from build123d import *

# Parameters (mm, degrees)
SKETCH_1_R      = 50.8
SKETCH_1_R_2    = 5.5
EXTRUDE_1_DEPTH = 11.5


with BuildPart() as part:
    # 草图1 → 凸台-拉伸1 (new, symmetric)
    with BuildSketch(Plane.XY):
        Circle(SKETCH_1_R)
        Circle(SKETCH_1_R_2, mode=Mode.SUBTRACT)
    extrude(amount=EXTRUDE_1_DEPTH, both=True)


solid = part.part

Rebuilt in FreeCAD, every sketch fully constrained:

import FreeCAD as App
import Part
import Sketcher

doc = App.newDocument("Part")
body = doc.addObject("PartDesign::Body", "Body")

# Sketch on XY plane
sketch1 = doc.addObject("Sketcher::SketchObject", "Sketch")
body.addObject(sketch1)
sketch1.AttachmentSupport = (doc.XY_Plane, [""])
sketch1.MapMode = "FlatFace"
sketch1.addGeometry([
    Part.Circle(App.Vector(0, 0, 0), App.Vector(0, 0, 1), 50.8),
    Part.Circle(App.Vector(0, 0, 0), App.Vector(0, 0, 1), 5.5),
], False)
sketch1.addConstraint([
    Sketcher.Constraint("Coincident", 0, 3, -1, 1),
    Sketcher.Constraint("Coincident", 1, 3, -1, 1),
    Sketcher.Constraint("Diameter", 1, 11.0),
    Sketcher.Constraint("Diameter", 0, 101.6),
])
pad1 = doc.addObject("PartDesign::Pad", "Pad")
body.addObject(pad1)
pad1.Profile = sketch1
pad1.Length = 23
pad1.Midplane = True

doc.recompute()
